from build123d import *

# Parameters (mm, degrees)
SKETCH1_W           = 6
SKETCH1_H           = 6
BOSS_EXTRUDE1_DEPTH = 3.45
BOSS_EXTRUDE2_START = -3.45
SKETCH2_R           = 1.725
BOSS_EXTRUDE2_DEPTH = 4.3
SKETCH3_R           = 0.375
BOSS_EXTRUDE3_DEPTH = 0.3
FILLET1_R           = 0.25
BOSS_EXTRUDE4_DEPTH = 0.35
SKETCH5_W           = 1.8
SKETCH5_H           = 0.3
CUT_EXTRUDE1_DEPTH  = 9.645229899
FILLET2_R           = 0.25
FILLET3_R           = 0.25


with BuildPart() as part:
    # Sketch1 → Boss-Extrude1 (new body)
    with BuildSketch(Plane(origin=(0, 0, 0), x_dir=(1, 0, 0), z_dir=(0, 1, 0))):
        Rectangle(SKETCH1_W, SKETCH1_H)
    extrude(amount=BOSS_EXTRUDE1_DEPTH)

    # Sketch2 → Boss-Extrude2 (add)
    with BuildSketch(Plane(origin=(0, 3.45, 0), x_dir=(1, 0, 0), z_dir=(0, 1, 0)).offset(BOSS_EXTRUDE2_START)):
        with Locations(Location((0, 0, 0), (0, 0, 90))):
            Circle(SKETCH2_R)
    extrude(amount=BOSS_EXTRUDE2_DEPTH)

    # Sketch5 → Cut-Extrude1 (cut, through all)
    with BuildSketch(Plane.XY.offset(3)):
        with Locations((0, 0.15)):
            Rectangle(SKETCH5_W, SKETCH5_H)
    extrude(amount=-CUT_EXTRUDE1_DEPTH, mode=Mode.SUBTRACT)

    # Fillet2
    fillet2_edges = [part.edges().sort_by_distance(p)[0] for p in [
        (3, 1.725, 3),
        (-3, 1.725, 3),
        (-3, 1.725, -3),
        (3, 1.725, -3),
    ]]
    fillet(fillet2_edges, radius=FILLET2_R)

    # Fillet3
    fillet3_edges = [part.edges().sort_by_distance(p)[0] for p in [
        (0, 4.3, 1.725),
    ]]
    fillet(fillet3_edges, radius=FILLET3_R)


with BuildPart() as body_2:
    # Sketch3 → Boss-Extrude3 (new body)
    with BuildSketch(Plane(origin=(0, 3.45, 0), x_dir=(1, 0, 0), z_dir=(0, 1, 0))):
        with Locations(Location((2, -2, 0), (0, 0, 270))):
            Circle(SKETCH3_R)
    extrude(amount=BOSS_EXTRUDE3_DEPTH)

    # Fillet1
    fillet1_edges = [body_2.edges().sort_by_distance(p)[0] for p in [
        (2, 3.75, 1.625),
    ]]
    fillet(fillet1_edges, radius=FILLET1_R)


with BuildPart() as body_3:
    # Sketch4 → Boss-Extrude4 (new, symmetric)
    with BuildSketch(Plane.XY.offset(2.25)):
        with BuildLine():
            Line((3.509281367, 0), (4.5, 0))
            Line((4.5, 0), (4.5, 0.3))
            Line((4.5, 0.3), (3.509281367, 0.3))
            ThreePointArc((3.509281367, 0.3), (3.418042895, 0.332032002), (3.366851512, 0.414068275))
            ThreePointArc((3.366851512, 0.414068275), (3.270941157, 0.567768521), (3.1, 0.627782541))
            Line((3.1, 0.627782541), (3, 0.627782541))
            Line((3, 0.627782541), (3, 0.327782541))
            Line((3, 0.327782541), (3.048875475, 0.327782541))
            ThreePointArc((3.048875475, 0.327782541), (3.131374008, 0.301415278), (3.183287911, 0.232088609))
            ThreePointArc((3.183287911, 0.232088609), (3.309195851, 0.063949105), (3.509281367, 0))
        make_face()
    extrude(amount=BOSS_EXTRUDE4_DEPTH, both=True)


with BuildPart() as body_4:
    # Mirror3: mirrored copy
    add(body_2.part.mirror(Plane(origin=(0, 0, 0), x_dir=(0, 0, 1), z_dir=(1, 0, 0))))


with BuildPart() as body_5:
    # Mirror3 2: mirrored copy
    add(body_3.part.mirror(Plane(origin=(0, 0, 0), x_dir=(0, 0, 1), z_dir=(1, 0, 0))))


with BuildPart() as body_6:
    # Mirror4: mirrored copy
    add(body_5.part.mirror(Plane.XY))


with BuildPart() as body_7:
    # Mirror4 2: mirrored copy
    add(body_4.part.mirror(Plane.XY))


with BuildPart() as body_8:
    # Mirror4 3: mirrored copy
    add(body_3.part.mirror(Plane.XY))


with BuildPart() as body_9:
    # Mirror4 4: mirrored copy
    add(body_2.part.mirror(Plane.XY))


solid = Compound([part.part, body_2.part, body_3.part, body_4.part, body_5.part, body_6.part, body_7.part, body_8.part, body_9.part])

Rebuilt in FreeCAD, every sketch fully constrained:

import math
import FreeCAD as App
import Part
import Sketcher
from FreeCAD import Vector


def edges_at(feature, points):
    """Names of the edges that pass closest to the given points."""
    edges = feature.Shape.Edges
    near = lambda p: min(range(len(edges)), key=lambda i: edges[i].distToShape(Part.Vertex(*p))[0])
    return sorted({f"Edge{near(p) + 1}" for p in points})

doc = App.newDocument("Part")
body = doc.addObject("PartDesign::Body", "Body")

# Sketch on XZ plane
sketch1 = doc.addObject("Sketcher::SketchObject", "Sketch")
body.addObject(sketch1)
sketch1.AttachmentSupport = (doc.XZ_Plane, [""])
sketch1.MapMode = "FlatFace"
sketch1.addGeometry([
    Part.LineSegment(Vector(-3, -3, 0), Vector(-3, 3, 0)),
    Part.LineSegment(Vector(-3, 3, 0), Vector(3, 3, 0)),
    Part.LineSegment(Vector(3, 3, 0), Vector(3, -3, 0)),
    Part.LineSegment(Vector(3, -3, 0), Vector(-3, -3, 0)),
], False)
sketch1.addConstraint([
    Sketcher.Constraint("Coincident", 0, 2, 1, 1),
    Sketcher.Constraint("Coincident", 1, 2, 2, 1),
    Sketcher.Constraint("Coincident", 2, 2, 3, 1),
    Sketcher.Constraint("Coincident", 3, 2, 0, 1),
    Sketcher.Constraint("Vertical", 0),
    Sketcher.Constraint("Horizontal", 1),
    Sketcher.Constraint("Vertical", 2),
    Sketcher.Constraint("Horizontal", 3),
    Sketcher.Constraint("Symmetric", 0, 2, 2, 2, -1, 1),
    Sketcher.Constraint("Equal", 3, 0),
    Sketcher.Constraint("DistanceX", 1, 1, 1, 2, 6.0),
])
pad1 = doc.addObject("PartDesign::Pad", "Pad")
body.addObject(pad1)
pad1.Profile = sketch1
pad1.Length = 3.45
pad1.Reversed = True

# Sketch on XZ plane
sketch2 = doc.addObject("Sketcher::SketchObject", "Sketch001")
body.addObject(sketch2)
sketch2.AttachmentSupport = (doc.XZ_Plane, [""])
sketch2.MapMode = "FlatFace"
sketch2.addGeometry(Part.Circle(Vector(0, 0, 0), Vector(0, 0, 1), 1.7), False)
sketch2.addConstraint([
    Sketcher.Constraint("Coincident", 0, 3, -1, 1),
    Sketcher.Constraint("Diameter", 0, 3.45),
])
pad2 = doc.addObject("PartDesign::Pad", "Pad001")
body.addObject(pad2)
pad2.Profile = sketch2
pad2.Length = 4.3
pad2.Reversed = True

# Sketch on XY plane
sketch3 = doc.addObject("Sketcher::SketchObject", "Sketch002")
body.addObject(sketch3)
sketch3.AttachmentSupport = (doc.XY_Plane, [""])
sketch3.MapMode = "FlatFace"
sketch3.AttachmentOffset = App.Placement(Vector(0, 0, 3), App.Rotation())
sketch3.addGeometry([
    Part.LineSegment(Vector(-0.9, 0.3, 0), Vector(-0.9, 0, 0)),
    Part.LineSegment(Vector(-0.9, 0, 0), Vector(0.9, 0, 0)),
    Part.LineSegment(Vector(0.9, 0, 0), Vector(0.9, 0.3, 0)),
    Part.LineSegment(Vector(0.9, 0.3, 0), Vector(-0.9, 0.3, 0)),
], False)
sketch3.addConstraint([
    Sketcher.Constraint("Coincident", 0, 2, 1, 1),
    Sketcher.Constraint("Coincident", 1, 2, 2, 1),
    Sketcher.Constraint("Coincident", 2, 2, 3, 1),
    Sketcher.Constraint("Coincident", 3, 2, 0, 1),
    Sketcher.Constraint("Vertical", 0),
    Sketcher.Constraint("Horizontal", 1),
    Sketcher.Constraint("Vertical", 2),
    Sketcher.Constraint("Horizontal", 3),
    Sketcher.Constraint("Symmetric", 0, 2, 1, 2, -1, 1),
    Sketcher.Constraint("DistanceX", 1, 1, 1, 2, 1.8),
    Sketcher.Constraint("DistanceY", 0, 2, 0, 1, 0.3),
])
pocket1 = doc.addObject("PartDesign::Pocket", "Pocket")
body.addObject(pocket1)
pocket1.Profile = sketch3
pocket1.Type = "ThroughAll"
doc.recompute()

fillet = doc.addObject("PartDesign::Fillet", "Fillet")
body.addObject(fillet)
fillet.Base = (pocket1, edges_at(pocket1, [
    (3, 1.725, 3),
    (-3, 1.725, 3),
    (-3, 1.725, -3),
    (3, 1.725, -3),
]))
fillet.Radius = 0.25
doc.recompute()

fillet2 = doc.addObject("PartDesign::Fillet", "Fillet001")
body.addObject(fillet2)
fillet2.Base = (fillet, edges_at(fillet, [(0, 4.3, 1.725)]))
fillet2.Radius = 0.25
body2 = doc.addObject("PartDesign::Body", "Body001")

# Sketch on XZ plane
sketch4 = doc.addObject("Sketcher::SketchObject", "Sketch003")
body2.addObject(sketch4)
sketch4.AttachmentSupport = (doc.getObject("XZ_Plane001"), [""])
sketch4.MapMode = "FlatFace"
sketch4.AttachmentOffset = App.Placement(Vector(0, 0, -3.45), App.Rotation())
sketch4.addGeometry(Part.Circle(Vector(2, 2, 0), Vector(0, 0, 1), 0.38), False)
sketch4.addConstraint([
    Sketcher.Constraint("Diameter", 0, 0.75),
    Sketcher.Constraint("DistanceX", -1, 1, 0, 3, 2.0),
    Sketcher.Constraint("DistanceY", -1, 1, 0, 3, 2.0),
])
pad3 = doc.addObject("PartDesign::Pad", "Pad002")
body2.addObject(pad3)
pad3.Profile = sketch4
pad3.Length = 0.3
pad3.Reversed = True
doc.recompute()

fillet3 = doc.addObject("PartDesign::Fillet", "Fillet002")
body2.addObject(fillet3)
fillet3.Base = (pad3, edges_at(pad3, [(2, 3.75, 1.625)]))
fillet3.Radius = 0.25
body3 = doc.addObject("PartDesign::Body", "Body002")

# Sketch on XY plane
sketch5 = doc.addObject("Sketcher::SketchObject", "Sketch004")
body3.addObject(sketch5)
sketch5.AttachmentSupport = (doc.getObject("XY_Plane002"), [""])
sketch5.MapMode = "FlatFace"
sketch5.AttachmentOffset = App.Placement(Vector(0, 0, 2.25), App.Rotation())
sketch5.addGeometry([
    Part.LineSegment(Vector(3.509, 0, 0), Vector(4.5, 0, 0)),  # 0
    Part.LineSegment(Vector(4.5, 0, 0), Vector(4.5, 0.3, 0)),  # 1
    Part.LineSegment(Vector(4.5, 0.3, 0), Vector(3.509, 0.3, 0)),  # 2
    Part.ArcOfCircle(Part.Circle(Vector(3.509, 0.446, 0), Vector(0, 0, 1), 0.146), math.radians(-167), math.radians(-90)),  # 3
    Part.ArcOfCircle(Part.Circle(Vector(3.1, 0.354, 0), Vector(0, 0, 1), 0.273), math.radians(13), math.radians(90)),  # 4
    Part.LineSegment(Vector(3.1, 0.628, 0), Vector(3, 0.628, 0)),  # 5
    Part.LineSegment(Vector(3, 0.628, 0), Vector(3, 0.328, 0)),  # 6
    Part.LineSegment(Vector(3, 0.328, 0), Vector(3.049, 0.328, 0)),  # 7
    Part.ArcOfCircle(Part.Circle(Vector(3.049, 0.186, 0), Vector(0, 0, 1), 0.142), math.radians(19), math.radians(90)),  # 8
    Part.ArcOfCircle(Part.Circle(Vector(3.509, 0.345, 0), Vector(0, 0, 1), 0.345), math.radians(-161), math.radians(-90)),  # 9
], False)
sketch5.addConstraint([
    Sketcher.Constraint("Coincident", 0, 2, 1, 1),
    Sketcher.Constraint("Coincident", 1, 2, 2, 1),
    Sketcher.Constraint("Tangent", 2, 2, 3, 2),
    Sketcher.Constraint("Tangent", 3, 1, 4, 1),
    Sketcher.Constraint("Tangent", 4, 2, 5, 1),
    Sketcher.Constraint("Coincident", 5, 2, 6, 1),
    Sketcher.Constraint("Coincident", 6, 2, 7, 1),
    Sketcher.Constraint("Tangent", 7, 2, 8, 2),
    Sketcher.Constraint("Tangent", 8, 1, 9, 1),
    Sketcher.Constraint("Tangent", 9, 2, 0, 1),
    Sketcher.Constraint("Horizontal", 0),
    Sketcher.Constraint("Vertical", 1),
    Sketcher.Constraint("Horizontal", 2),
    Sketcher.Constraint("Horizontal", 5),
    Sketcher.Constraint("Vertical", 6),
    Sketcher.Constraint("Horizontal", 7),
    Sketcher.Constraint("PointOnObject", 0, 2, -1),
    Sketcher.Constraint("Vertical", 3, 3, 9, 3),
    Sketcher.Constraint("Equal", 1, 6),
    Sketcher.Constraint("DistanceX", 5, 2, 5, 1, 0.1),
    Sketcher.Constraint("DistanceY", 1, 1, 1, 2, 0.3),
    Sketcher.Constraint("DistanceX", -1, 1, 5, 2, 3.0),
    Sketcher.Constraint("DistanceX", -1, 1, 0, 2, 4.5),
    Sketcher.Constraint("Radius", 9, 0.344991),
    Sketcher.Constraint("Radius", 3, 0.145956),
    Sketcher.Constraint("Radius", 4, 0.273457),
    Sketcher.Constraint("Radius", 8, 0.142245),
    Sketcher.Constraint("DistanceX", 0, 1, 0, 2, 0.990719),
])
pad4 = doc.addObject("PartDesign::Pad", "Pad003")
body3.addObject(pad4)
pad4.Profile = sketch5
pad4.Length = 0.7
pad4.Midplane = True
body4 = doc.addObject("PartDesign::Body", "Body003")
doc.recompute()

mirroring = doc.addObject("Part::Mirroring", "Mirroring")
mirroring.Source = body2
mirroring.Base = Vector(0, 0, 0)
mirroring.Normal = Vector(1, 0, 0)
body4.BaseFeature = mirroring
doc.recompute()
body5 = doc.addObject("PartDesign::Body", "Body004")
doc.recompute()

mirroring2 = doc.addObject("Part::Mirroring", "Mirroring001")
mirroring2.Source = body3
mirroring2.Base = Vector(0, 0, 0)
mirroring2.Normal = Vector(1, 0, 0)
body5.BaseFeature = mirroring2
doc.recompute()
body6 = doc.addObject("PartDesign::Body", "Body005")
doc.recompute()

mirroring3 = doc.addObject("Part::Mirroring", "Mirroring002")
mirroring3.Source = body5
mirroring3.Base = Vector(0, 0, 0)
mirroring3.Normal = Vector(0, 0, 1)
body6.BaseFeature = mirroring3
doc.recompute()
body7 = doc.addObject("PartDesign::Body", "Body006")
doc.recompute()

mirroring4 = doc.addObject("Part::Mirroring", "Mirroring003")
mirroring4.Source = body4
mirroring4.Base = Vector(0, 0, 0)
mirroring4.Normal = Vector(0, 0, 1)
body7.BaseFeature = mirroring4
doc.recompute()
body8 = doc.addObject("PartDesign::Body", "Body007")
doc.recompute()

mirroring5 = doc.addObject("Part::Mirroring", "Mirroring004")
mirroring5.Source = body3
mirroring5.Base = Vector(0, 0, 0)
mirroring5.Normal = Vector(0, 0, 1)
body8.BaseFeature = mirroring5
doc.recompute()
body9 = doc.addObject("PartDesign::Body", "Body008")
doc.recompute()

mirroring6 = doc.addObject("Part::Mirroring", "Mirroring005")
mirroring6.Source = body2
mirroring6.Base = Vector(0, 0, 0)
mirroring6.Normal = Vector(0, 0, 1)
body9.BaseFeature = mirroring6
doc.recompute()
mirroring.Visibility = False
mirroring2.Visibility = False
mirroring3.Visibility = False
mirroring4.Visibility = False
mirroring5.Visibility = False
mirroring6.Visibility = False

doc.recompute()
